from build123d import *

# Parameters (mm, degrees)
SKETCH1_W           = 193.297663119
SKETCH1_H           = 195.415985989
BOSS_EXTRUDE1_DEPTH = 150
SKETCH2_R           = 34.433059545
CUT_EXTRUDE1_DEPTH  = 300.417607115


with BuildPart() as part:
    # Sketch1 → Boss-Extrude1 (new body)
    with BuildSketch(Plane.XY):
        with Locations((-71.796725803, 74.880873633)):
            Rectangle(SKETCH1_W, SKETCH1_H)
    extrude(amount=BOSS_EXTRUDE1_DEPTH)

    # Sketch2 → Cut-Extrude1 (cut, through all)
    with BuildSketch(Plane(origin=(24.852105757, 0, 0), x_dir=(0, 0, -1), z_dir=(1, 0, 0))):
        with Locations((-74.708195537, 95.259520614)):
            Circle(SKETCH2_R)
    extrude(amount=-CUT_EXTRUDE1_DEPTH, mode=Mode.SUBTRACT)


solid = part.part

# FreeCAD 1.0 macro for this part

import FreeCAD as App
import Part
import Sketcher
from FreeCAD import Vector

doc = App.newDocument("Part")
body = doc.addObject("PartDesign::Body", "Body")

# Sketch on XY plane
sketch1 = doc.addObject("Sketcher::SketchObject", "Sketch")
body.addObject(sketch1)
sketch1.AttachmentSupport = (doc.XY_Plane, [""])
sketch1.MapMode = "FlatFace"
sketch1.addGeometry([
    Part.LineSegment(Vector(-168, 173, 0), Vector(-168, -23, 0)),
    Part.LineSegment(Vector(-168, -23, 0), Vector(25, -23, 0)),
    Part.LineSegment(Vector(25, -23, 0), Vector(25, 173, 0)),
    Part.LineSegment(Vector(25, 173, 0), Vector(-168, 173, 0)),
], False)
sketch1.addConstraint([
    Sketcher.Constraint("Coincident", 0, 2, 1, 1),
    Sketcher.Constraint("Coincident", 1, 2, 2, 1),
    Sketcher.Constraint("Coincident", 2, 2, 3, 1),
    Sketcher.Constraint("Coincident", 3, 2, 0, 1),
    Sketcher.Constraint("Vertical", 0),
    Sketcher.Constraint("Horizontal", 1),
    Sketcher.Constraint("Vertical", 2),
    Sketcher.Constraint("Horizontal", 3),
    Sketcher.Constraint("DistanceX", 1, 1, 1, 2, 193.297663),
    Sketcher.Constraint("DistanceY", 0, 2, 0, 1, 195.415986),
    Sketcher.Constraint("DistanceY", 0, 2, -1, 1, 22.827119),
    Sketcher.Constraint("DistanceX", 0, 2, -1, 1, 168.445557),
])
pad1 = doc.addObject("PartDesign::Pad", "Pad")
body.addObject(pad1)
pad1.Profile = sketch1
pad1.Length = 150

# Sketch on YZ plane
sketch2 = doc.addObject("Sketcher::SketchObject", "Sketch001")
body.addObject(sketch2)
sketch2.AttachmentSupport = (doc.YZ_Plane, [""])
sketch2.MapMode = "FlatFace"
sketch2.AttachmentOffset = App.Placement(Vector(0, 0, 24.852106), App.Rotation())
sketch2.addGeometry(Part.Circle(Vector(95, 75, 0), Vector(0, 0, 1), 34), False)
sketch2.addConstraint([
    Sketcher.Constraint("Diameter", 0, 68.866119),
    Sketcher.Constraint("DistanceX", -1, 1, 0, 3, 95.259521),
    Sketcher.Constraint("DistanceY", -1, 1, 0, 3, 74.708196),
])
pocket1 = doc.addObject("PartDesign::Pocket", "Pocket")
body.addObject(pocket1)
pocket1.Profile = sketch2
pocket1.Type = "ThroughAll"

doc.recompute()
